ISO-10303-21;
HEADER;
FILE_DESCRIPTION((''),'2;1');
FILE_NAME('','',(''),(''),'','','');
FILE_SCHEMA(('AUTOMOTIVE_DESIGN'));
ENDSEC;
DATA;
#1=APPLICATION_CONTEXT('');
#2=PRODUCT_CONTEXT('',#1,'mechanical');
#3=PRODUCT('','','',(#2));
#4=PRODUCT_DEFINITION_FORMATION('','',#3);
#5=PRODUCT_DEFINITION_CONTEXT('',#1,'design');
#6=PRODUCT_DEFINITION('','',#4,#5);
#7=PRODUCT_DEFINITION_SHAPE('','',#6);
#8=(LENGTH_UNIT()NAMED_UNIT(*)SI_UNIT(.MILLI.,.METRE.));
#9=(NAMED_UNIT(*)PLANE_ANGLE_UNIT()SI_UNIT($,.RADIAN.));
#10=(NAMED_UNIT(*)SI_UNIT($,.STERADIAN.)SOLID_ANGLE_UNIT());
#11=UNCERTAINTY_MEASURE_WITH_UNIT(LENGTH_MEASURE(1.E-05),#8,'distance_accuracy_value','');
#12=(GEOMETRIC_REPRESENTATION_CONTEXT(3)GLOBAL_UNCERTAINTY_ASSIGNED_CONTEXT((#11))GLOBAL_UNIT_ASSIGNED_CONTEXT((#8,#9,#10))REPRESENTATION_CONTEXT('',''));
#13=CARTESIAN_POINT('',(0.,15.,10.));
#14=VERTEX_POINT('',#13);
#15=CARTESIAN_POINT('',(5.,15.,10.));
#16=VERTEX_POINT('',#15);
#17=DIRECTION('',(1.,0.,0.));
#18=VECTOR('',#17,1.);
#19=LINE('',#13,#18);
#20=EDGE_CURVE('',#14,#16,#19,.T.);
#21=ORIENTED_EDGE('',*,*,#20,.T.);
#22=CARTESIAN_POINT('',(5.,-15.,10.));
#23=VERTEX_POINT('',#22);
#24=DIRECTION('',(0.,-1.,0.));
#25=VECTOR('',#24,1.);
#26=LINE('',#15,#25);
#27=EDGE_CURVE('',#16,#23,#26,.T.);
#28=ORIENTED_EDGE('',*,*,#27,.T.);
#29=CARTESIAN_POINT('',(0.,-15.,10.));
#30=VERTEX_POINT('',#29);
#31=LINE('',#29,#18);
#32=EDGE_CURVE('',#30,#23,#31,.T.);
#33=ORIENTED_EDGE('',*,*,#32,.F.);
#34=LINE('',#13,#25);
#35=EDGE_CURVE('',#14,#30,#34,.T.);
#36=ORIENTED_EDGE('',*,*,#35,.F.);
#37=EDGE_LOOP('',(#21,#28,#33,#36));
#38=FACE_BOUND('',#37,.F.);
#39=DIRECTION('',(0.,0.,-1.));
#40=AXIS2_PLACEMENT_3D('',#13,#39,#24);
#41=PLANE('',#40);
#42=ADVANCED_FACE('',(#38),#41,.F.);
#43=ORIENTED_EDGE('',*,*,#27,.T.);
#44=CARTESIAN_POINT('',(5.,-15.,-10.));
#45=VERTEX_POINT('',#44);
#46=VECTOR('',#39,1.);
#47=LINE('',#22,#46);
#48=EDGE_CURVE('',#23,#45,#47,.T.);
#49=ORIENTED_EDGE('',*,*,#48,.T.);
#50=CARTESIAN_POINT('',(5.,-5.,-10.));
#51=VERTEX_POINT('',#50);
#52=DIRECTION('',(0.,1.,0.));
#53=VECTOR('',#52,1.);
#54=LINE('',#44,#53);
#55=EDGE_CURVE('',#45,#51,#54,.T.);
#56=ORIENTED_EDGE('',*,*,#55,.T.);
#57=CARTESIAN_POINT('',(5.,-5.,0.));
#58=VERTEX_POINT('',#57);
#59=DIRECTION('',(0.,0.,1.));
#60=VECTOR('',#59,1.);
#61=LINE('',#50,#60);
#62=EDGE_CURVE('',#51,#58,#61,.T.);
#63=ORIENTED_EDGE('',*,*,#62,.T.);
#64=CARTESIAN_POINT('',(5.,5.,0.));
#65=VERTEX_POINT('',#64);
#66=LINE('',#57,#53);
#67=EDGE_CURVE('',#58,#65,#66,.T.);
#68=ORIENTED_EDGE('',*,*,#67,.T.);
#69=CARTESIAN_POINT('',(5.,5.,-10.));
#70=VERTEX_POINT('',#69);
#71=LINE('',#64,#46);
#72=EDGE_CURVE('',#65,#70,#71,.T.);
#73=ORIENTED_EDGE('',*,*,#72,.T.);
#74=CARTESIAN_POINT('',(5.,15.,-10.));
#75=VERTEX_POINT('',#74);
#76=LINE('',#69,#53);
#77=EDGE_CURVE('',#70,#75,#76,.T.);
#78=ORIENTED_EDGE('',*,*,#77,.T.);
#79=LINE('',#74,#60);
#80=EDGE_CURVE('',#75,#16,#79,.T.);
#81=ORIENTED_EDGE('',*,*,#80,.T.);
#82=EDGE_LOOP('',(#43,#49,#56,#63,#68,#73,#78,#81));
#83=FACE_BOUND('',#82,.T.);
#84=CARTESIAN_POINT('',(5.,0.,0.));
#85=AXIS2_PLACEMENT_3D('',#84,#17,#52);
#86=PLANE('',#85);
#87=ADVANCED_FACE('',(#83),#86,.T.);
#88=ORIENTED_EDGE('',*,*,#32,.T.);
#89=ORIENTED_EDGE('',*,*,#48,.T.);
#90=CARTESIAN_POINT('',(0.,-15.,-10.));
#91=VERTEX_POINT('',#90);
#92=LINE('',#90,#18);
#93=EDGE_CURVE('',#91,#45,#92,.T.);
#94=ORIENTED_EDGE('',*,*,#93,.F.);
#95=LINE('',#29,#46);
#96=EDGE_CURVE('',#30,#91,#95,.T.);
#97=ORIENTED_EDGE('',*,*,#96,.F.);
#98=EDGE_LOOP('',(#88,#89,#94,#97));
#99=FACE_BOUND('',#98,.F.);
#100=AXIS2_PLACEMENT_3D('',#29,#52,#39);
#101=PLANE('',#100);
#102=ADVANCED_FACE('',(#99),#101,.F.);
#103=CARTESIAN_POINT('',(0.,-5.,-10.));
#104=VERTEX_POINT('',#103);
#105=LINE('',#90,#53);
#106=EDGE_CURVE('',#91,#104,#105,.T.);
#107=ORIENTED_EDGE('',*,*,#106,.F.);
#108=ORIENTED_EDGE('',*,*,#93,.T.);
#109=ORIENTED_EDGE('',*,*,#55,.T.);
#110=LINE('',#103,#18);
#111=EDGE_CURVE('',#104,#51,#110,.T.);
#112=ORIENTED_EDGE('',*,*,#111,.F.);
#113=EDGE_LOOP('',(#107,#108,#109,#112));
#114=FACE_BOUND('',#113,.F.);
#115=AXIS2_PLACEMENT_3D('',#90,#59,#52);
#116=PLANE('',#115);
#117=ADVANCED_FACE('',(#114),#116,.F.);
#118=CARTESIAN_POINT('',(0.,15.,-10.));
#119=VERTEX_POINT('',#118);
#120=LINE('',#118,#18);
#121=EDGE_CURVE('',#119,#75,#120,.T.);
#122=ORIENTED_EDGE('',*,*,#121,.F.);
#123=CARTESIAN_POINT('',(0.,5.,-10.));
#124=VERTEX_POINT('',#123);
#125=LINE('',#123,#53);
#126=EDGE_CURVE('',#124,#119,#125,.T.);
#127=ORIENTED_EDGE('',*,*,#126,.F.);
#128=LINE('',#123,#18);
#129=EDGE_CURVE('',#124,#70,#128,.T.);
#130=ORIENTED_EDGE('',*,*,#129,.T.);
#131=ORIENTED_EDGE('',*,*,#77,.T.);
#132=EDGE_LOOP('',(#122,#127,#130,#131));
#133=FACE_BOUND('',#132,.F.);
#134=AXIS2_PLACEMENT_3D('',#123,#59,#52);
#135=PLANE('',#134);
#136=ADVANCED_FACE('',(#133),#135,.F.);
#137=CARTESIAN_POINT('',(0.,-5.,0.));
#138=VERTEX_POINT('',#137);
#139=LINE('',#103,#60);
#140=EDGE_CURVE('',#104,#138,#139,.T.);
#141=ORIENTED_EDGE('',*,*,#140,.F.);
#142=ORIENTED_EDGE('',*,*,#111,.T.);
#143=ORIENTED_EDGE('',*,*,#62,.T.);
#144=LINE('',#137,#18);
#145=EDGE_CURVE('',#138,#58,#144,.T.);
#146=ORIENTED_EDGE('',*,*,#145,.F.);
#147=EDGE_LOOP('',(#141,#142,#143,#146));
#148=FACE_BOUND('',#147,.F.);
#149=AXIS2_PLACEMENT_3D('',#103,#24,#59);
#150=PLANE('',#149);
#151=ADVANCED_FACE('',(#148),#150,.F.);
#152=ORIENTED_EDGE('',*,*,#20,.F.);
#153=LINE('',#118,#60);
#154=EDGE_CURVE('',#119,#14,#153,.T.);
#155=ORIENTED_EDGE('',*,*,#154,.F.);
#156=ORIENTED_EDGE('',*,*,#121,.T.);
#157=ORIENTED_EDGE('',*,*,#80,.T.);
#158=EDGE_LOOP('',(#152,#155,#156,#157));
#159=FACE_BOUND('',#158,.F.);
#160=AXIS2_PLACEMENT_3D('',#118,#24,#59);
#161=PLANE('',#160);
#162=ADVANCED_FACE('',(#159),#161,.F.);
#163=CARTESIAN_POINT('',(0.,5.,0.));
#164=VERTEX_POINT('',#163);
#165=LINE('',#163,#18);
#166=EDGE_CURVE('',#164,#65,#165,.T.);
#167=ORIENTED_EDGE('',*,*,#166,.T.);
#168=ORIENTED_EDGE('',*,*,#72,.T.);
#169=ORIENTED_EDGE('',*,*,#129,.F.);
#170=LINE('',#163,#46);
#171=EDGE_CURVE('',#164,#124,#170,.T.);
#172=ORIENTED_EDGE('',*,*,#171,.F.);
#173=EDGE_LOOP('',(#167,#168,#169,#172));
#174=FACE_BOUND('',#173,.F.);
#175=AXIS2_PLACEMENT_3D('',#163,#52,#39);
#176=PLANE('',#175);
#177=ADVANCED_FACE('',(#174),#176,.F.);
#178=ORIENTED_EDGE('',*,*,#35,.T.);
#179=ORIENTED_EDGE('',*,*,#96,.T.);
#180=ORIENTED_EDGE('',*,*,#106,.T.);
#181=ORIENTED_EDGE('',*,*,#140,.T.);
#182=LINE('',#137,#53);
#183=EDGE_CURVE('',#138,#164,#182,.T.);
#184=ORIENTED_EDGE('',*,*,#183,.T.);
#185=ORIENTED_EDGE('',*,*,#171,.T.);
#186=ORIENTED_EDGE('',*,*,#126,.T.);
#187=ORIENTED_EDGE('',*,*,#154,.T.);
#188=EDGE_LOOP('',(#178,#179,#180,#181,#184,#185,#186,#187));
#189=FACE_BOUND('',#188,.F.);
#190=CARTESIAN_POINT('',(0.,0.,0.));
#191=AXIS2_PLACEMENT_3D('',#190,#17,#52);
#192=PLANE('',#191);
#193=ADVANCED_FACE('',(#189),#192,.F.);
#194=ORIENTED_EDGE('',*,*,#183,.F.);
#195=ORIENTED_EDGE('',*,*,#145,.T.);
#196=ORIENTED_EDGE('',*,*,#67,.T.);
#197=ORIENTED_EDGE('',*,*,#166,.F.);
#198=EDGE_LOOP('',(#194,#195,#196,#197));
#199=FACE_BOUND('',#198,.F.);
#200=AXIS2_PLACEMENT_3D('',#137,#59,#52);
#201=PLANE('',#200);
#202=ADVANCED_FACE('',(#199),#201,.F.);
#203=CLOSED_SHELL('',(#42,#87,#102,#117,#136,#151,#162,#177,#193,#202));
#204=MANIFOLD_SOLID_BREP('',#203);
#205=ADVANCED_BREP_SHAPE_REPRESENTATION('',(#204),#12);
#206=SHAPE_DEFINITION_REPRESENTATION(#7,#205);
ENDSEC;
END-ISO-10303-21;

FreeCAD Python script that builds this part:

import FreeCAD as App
import Part
import Sketcher

V = App.Vector

doc = App.newDocument("Part")
body = doc.addObject("PartDesign::Body", "Body")

# Sketch on YZ plane
sketch1 = body.newObject("Sketcher::SketchObject", "Sketch")
sketch1.AttachmentSupport = (doc.getObject("YZ_Plane"), [""])
sketch1.MapMode = "FlatFace"
sketch1.addGeometry([
    Part.LineSegment(V(5, -10, 0), V(15, -10, 0)),  # 0
    Part.LineSegment(V(15, -10, 0), V(15, 10, 0)),  # 1
    Part.LineSegment(V(15, 10, 0), V(-15, 10, 0)),  # 2
    Part.LineSegment(V(-15, 10, 0), V(-15, -10, 0)),  # 3
    Part.LineSegment(V(-15, -10, 0), V(-5, -10, 0)),  # 4
    Part.LineSegment(V(-5, -10, 0), V(-5, 0, 0)),  # 5
    Part.LineSegment(V(-5, 0, 0), V(5, 0, 0)),  # 6
    Part.LineSegment(V(5, 0, 0), V(5, -10, 0)),  # 7
], False)
sketch1.addConstraint([
    Sketcher.Constraint("Coincident", 0, 2, 1, 1),
    Sketcher.Constraint("Coincident", 1, 2, 2, 1),
    Sketcher.Constraint("Coincident", 2, 2, 3, 1),
    Sketcher.Constraint("Coincident", 3, 2, 4, 1),
    Sketcher.Constraint("Coincident", 4, 2, 5, 1),
    Sketcher.Constraint("Coincident", 5, 2, 6, 1),
    Sketcher.Constraint("Coincident", 6, 2, 7, 1),
    Sketcher.Constraint("Coincident", 7, 2, 0, 1),
    Sketcher.Constraint("Horizontal", 0),
    Sketcher.Constraint("Vertical", 1),
    Sketcher.Constraint("Horizontal", 2),
    Sketcher.Constraint("Vertical", 3),
    Sketcher.Constraint("Horizontal", 4),
    Sketcher.Constraint("Vertical", 5),
    Sketcher.Constraint("Horizontal", 6),
    Sketcher.Constraint("Vertical", 7),
    Sketcher.Constraint("Symmetric", 0, 2, 2, 2, -1, 1),
    Sketcher.Constraint("Symmetric", 5, 2, 6, 2, -1, 1),
    Sketcher.Constraint("Horizontal", 0, 2, 3, 2),
    Sketcher.Constraint("Equal", 4, 6),
    Sketcher.Constraint("Equal", 6, 5),
    Sketcher.Constraint("DistanceX", 0, 1, 0, 2, 10.0),
])
pad1 = body.newObject("PartDesign::Pad", "Pad")
pad1.Profile = sketch1
pad1.Length = 5

doc.recompute()
